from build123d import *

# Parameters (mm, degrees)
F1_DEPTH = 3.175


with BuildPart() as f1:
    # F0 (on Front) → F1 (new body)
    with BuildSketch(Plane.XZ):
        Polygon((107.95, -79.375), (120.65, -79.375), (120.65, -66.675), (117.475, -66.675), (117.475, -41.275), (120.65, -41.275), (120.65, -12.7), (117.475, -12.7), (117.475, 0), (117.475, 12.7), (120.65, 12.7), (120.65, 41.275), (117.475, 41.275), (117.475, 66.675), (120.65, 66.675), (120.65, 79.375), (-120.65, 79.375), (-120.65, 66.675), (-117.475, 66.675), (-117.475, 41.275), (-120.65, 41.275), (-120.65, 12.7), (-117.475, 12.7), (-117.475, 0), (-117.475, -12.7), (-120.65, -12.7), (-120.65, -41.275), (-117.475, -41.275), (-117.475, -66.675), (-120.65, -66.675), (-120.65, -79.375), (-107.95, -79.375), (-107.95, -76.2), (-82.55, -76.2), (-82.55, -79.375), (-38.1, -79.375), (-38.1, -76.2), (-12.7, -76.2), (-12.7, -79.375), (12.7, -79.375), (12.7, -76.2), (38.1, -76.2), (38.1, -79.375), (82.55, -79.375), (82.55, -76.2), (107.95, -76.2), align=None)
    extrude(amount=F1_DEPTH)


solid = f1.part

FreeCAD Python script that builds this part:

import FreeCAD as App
import Part
import Sketcher
Q = App.Units.Quantity

doc = App.newDocument("Part")
body = doc.addObject("PartDesign::Body", "Body")

# Sketch on XZ plane
sketch1 = doc.addObject("Sketcher::SketchObject", "Sketch")
body.addObject(sketch1)
sketch1.AttachmentSupport = (doc.XZ_Plane, [""])
sketch1.MapMode = "FlatFace"
sketch1.addGeometry(Part.LineSegment(App.Vector(108, -79.4, 0), App.Vector(120.7, -79.4, 0)), False)
sketch1.addGeometry(Part.LineSegment(App.Vector(120.7, -79.4, 0), App.Vector(120.7, -66.7, 0)), False)
sketch1.addGeometry(Part.LineSegment(App.Vector(120.7, -66.7, 0), App.Vector(117.5, -66.7, 0)), False)
sketch1.addGeometry(Part.LineSegment(App.Vector(117.5, -66.7, 0), App.Vector(117.5, -41.3, 0)), False)
sketch1.addGeometry(Part.LineSegment(App.Vector(117.5, -41.3, 0), App.Vector(120.7, -41.3, 0)), False)
sketch1.addGeometry(Part.LineSegment(App.Vector(120.7, -41.3, 0), App.Vector(120.7, -12.7, 0)), False)
sketch1.addGeometry(Part.LineSegment(App.Vector(120.7, -12.7, 0), App.Vector(117.5, -12.7, 0)), False)
sketch1.addGeometry(Part.LineSegment(App.Vector(117.5, -12.7, 0), App.Vector(117.5, 12.7, 0)), False)
sketch1.addGeometry(Part.LineSegment(App.Vector(117.5, 12.7, 0), App.Vector(120.7, 12.7, 0)), False)
sketch1.addGeometry(Part.LineSegment(App.Vector(120.7, 12.7, 0), App.Vector(120.7, 41.3, 0)), False)
sketch1.addGeometry(Part.LineSegment(App.Vector(120.7, 41.3, 0), App.Vector(117.5, 41.3, 0)), False)
sketch1.addGeometry(Part.LineSegment(App.Vector(117.5, 41.3, 0), App.Vector(117.5, 66.7, 0)), False)
sketch1.addGeometry(Part.LineSegment(App.Vector(117.5, 66.7, 0), App.Vector(120.7, 66.7, 0)), False)
sketch1.addGeometry(Part.LineSegment(App.Vector(120.7, 66.7, 0), App.Vector(120.7, 79.4, 0)), False)
sketch1.addGeometry(Part.LineSegment(App.Vector(120.7, 79.4, 0), App.Vector(-120.7, 79.4, 0)), False)
sketch1.addGeometry(Part.LineSegment(App.Vector(-120.7, 79.4, 0), App.Vector(-120.7, 66.7, 0)), False)
sketch1.addGeometry(Part.LineSegment(App.Vector(-120.7, 66.7, 0), App.Vector(-117.5, 66.7, 0)), False)
sketch1.addGeometry(Part.LineSegment(App.Vector(-117.5, 66.7, 0), App.Vector(-117.5, 41.3, 0)), False)
sketch1.addGeometry(Part.LineSegment(App.Vector(-117.5, 41.3, 0), App.Vector(-120.7, 41.3, 0)), False)
sketch1.addGeometry(Part.LineSegment(App.Vector(-120.7, 41.3, 0), App.Vector(-120.7, 12.7, 0)), False)
sketch1.addGeometry(Part.LineSegment(App.Vector(-120.7, 12.7, 0), App.Vector(-117.5, 12.7, 0)), False)
sketch1.addGeometry(Part.LineSegment(App.Vector(-117.5, 12.7, 0), App.Vector(-117.5, -12.7, 0)), False)
sketch1.addGeometry(Part.LineSegment(App.Vector(-117.5, -12.7, 0), App.Vector(-120.7, -12.7, 0)), False)
sketch1.addGeometry(Part.LineSegment(App.Vector(-120.7, -12.7, 0), App.Vector(-120.7, -41.3, 0)), False)
sketch1.addGeometry(Part.LineSegment(App.Vector(-120.7, -41.3, 0), App.Vector(-117.5, -41.3, 0)), False)
sketch1.addGeometry(Part.LineSegment(App.Vector(-117.5, -41.3, 0), App.Vector(-117.5, -66.7, 0)), False)
sketch1.addGeometry(Part.LineSegment(App.Vector(-117.5, -66.7, 0), App.Vector(-120.7, -66.7, 0)), False)
sketch1.addGeometry(Part.LineSegment(App.Vector(-120.7, -66.7, 0), App.Vector(-120.7, -79.4, 0)), False)
sketch1.addGeometry(Part.LineSegment(App.Vector(-120.7, -79.4, 0), App.Vector(-108, -79.4, 0)), False)
sketch1.addGeometry(Part.LineSegment(App.Vector(-108, -79.4, 0), App.Vector(-108, -76.2, 0)), False)
sketch1.addGeometry(Part.LineSegment(App.Vector(-108, -76.2, 0), App.Vector(-82.5, -76.2, 0)), False)
sketch1.addGeometry(Part.LineSegment(App.Vector(-82.5, -76.2, 0), App.Vector(-82.5, -79.4, 0)), False)
sketch1.addGeometry(Part.LineSegment(App.Vector(-82.5, -79.4, 0), App.Vector(-38.1, -79.4, 0)), False)
sketch1.addGeometry(Part.LineSegment(App.Vector(-38.1, -79.4, 0), App.Vector(-38.1, -76.2, 0)), False)
sketch1.addGeometry(Part.LineSegment(App.Vector(-38.1, -76.2, 0), App.Vector(-12.7, -76.2, 0)), False)
sketch1.addGeometry(Part.LineSegment(App.Vector(-12.7, -76.2, 0), App.Vector(-12.7, -79.4, 0)), False)
sketch1.addGeometry(Part.LineSegment(App.Vector(-12.7, -79.4, 0), App.Vector(12.7, -79.4, 0)), False)
sketch1.addGeometry(Part.LineSegment(App.Vector(12.7, -79.4, 0), App.Vector(12.7, -76.2, 0)), False)
sketch1.addGeometry(Part.LineSegment(App.Vector(12.7, -76.2, 0), App.Vector(38.1, -76.2, 0)), False)
sketch1.addGeometry(Part.LineSegment(App.Vector(38.1, -76.2, 0), App.Vector(38.1, -79.4, 0)), False)
sketch1.addGeometry(Part.LineSegment(App.Vector(38.1, -79.4, 0), App.Vector(82.5, -79.4, 0)), False)
sketch1.addGeometry(Part.LineSegment(App.Vector(82.5, -79.4, 0), App.Vector(82.5, -76.2, 0)), False)
sketch1.addGeometry(Part.LineSegment(App.Vector(82.5, -76.2, 0), App.Vector(108, -76.2, 0)), False)
sketch1.addGeometry(Part.LineSegment(App.Vector(108, -76.2, 0), App.Vector(108, -79.4, 0)), False)
sketch1.addConstraint(Sketcher.Constraint("Coincident", 0, 2, 1, 1))
sketch1.addConstraint(Sketcher.Constraint("Coincident", 1, 2, 2, 1))
sketch1.addConstraint(Sketcher.Constraint("Coincident", 2, 2, 3, 1))
sketch1.addConstraint(Sketcher.Constraint("Coincident", 3, 2, 4, 1))
sketch1.addConstraint(Sketcher.Constraint("Coincident", 4, 2, 5, 1))
sketch1.addConstraint(Sketcher.Constraint("Coincident", 5, 2, 6, 1))
sketch1.addConstraint(Sketcher.Constraint("Coincident", 6, 2, 7, 1))
sketch1.addConstraint(Sketcher.Constraint("Coincident", 7, 2, 8, 1))
sketch1.addConstraint(Sketcher.Constraint("Coincident", 8, 2, 9, 1))
sketch1.addConstraint(Sketcher.Constraint("Coincident", 9, 2, 10, 1))
sketch1.addConstraint(Sketcher.Constraint("Coincident", 10, 2, 11, 1))
sketch1.addConstraint(Sketcher.Constraint("Coincident", 11, 2, 12, 1))
sketch1.addConstraint(Sketcher.Constraint("Coincident", 12, 2, 13, 1))
sketch1.addConstraint(Sketcher.Constraint("Coincident", 13, 2, 14, 1))
sketch1.addConstraint(Sketcher.Constraint("Coincident", 14, 2, 15, 1))
sketch1.addConstraint(Sketcher.Constraint("Coincident", 15, 2, 16, 1))
sketch1.addConstraint(Sketcher.Constraint("Coincident", 16, 2, 17, 1))
sketch1.addConstraint(Sketcher.Constraint("Coincident", 17, 2, 18, 1))
sketch1.addConstraint(Sketcher.Constraint("Coincident", 18, 2, 19, 1))
sketch1.addConstraint(Sketcher.Constraint("Coincident", 19, 2, 20, 1))
sketch1.addConstraint(Sketcher.Constraint("Coincident", 20, 2, 21, 1))
sketch1.addConstraint(Sketcher.Constraint("Coincident", 21, 2, 22, 1))
sketch1.addConstraint(Sketcher.Constraint("Coincident", 22, 2, 23, 1))
sketch1.addConstraint(Sketcher.Constraint("Coincident", 23, 2, 24, 1))
sketch1.addConstraint(Sketcher.Constraint("Coincident", 24, 2, 25, 1))
sketch1.addConstraint(Sketcher.Constraint("Coincident", 25, 2, 26, 1))
sketch1.addConstraint(Sketcher.Constraint("Coincident", 26, 2, 27, 1))
sketch1.addConstraint(Sketcher.Constraint("Coincident", 27, 2, 28, 1))
sketch1.addConstraint(Sketcher.Constraint("Coincident", 28, 2, 29, 1))
sketch1.addConstraint(Sketcher.Constraint("Coincident", 29, 2, 30, 1))
sketch1.addConstraint(Sketcher.Constraint("Coincident", 30, 2, 31, 1))
sketch1.addConstraint(Sketcher.Constraint("Coincident", 31, 2, 32, 1))
sketch1.addConstraint(Sketcher.Constraint("Coincident", 32, 2, 33, 1))
sketch1.addConstraint(Sketcher.Constraint("Coincident", 33, 2, 34, 1))
sketch1.addConstraint(Sketcher.Constraint("Coincident", 34, 2, 35, 1))
sketch1.addConstraint(Sketcher.Constraint("Coincident", 35, 2, 36, 1))
sketch1.addConstraint(Sketcher.Constraint("Coincident", 36, 2, 37, 1))
sketch1.addConstraint(Sketcher.Constraint("Coincident", 37, 2, 38, 1))
sketch1.addConstraint(Sketcher.Constraint("Coincident", 38, 2, 39, 1))
sketch1.addConstraint(Sketcher.Constraint("Coincident", 39, 2, 40, 1))
sketch1.addConstraint(Sketcher.Constraint("Coincident", 40, 2, 41, 1))
sketch1.addConstraint(Sketcher.Constraint("Coincident", 41, 2, 42, 1))
sketch1.addConstraint(Sketcher.Constraint("Coincident", 42, 2, 43, 1))
sketch1.addConstraint(Sketcher.Constraint("Coincident", 43, 2, 0, 1))
sketch1.addConstraint(Sketcher.Constraint("Horizontal", 0))
sketch1.addConstraint(Sketcher.Constraint("Vertical", 1))
sketch1.addConstraint(Sketcher.Constraint("Horizontal", 2))
sketch1.addConstraint(Sketcher.Constraint("Vertical", 3))
sketch1.addConstraint(Sketcher.Constraint("Horizontal", 4))
sketch1.addConstraint(Sketcher.Constraint("Vertical", 5))
sketch1.addConstraint(Sketcher.Constraint("Horizontal", 6))
sketch1.addConstraint(Sketcher.Constraint("Vertical", 7))
sketch1.addConstraint(Sketcher.Constraint("Horizontal", 8))
sketch1.addConstraint(Sketcher.Constraint("Vertical", 9))
sketch1.addConstraint(Sketcher.Constraint("Horizontal", 10))
sketch1.addConstraint(Sketcher.Constraint("Vertical", 11))
sketch1.addConstraint(Sketcher.Constraint("Horizontal", 12))
sketch1.addConstraint(Sketcher.Constraint("Vertical", 13))
sketch1.addConstraint(Sketcher.Constraint("Horizontal", 14))
sketch1.addConstraint(Sketcher.Constraint("Vertical", 15))
sketch1.addConstraint(Sketcher.Constraint("Horizontal", 16))
sketch1.addConstraint(Sketcher.Constraint("Vertical", 17))
sketch1.addConstraint(Sketcher.Constraint("Horizontal", 18))
sketch1.addConstraint(Sketcher.Constraint("Vertical", 19))
sketch1.addConstraint(Sketcher.Constraint("Horizontal", 20))
sketch1.addConstraint(Sketcher.Constraint("Vertical", 21))
sketch1.addConstraint(Sketcher.Constraint("Horizontal", 22))
sketch1.addConstraint(Sketcher.Constraint("Vertical", 23))
sketch1.addConstraint(Sketcher.Constraint("Horizontal", 24))
sketch1.addConstraint(Sketcher.Constraint("Vertical", 25))
sketch1.addConstraint(Sketcher.Constraint("Horizontal", 26))
sketch1.addConstraint(Sketcher.Constraint("Vertical", 27))
sketch1.addConstraint(Sketcher.Constraint("Horizontal", 28))
sketch1.addConstraint(Sketcher.Constraint("Vertical", 29))
sketch1.addConstraint(Sketcher.Constraint("Horizontal", 30))
sketch1.addConstraint(Sketcher.Constraint("Vertical", 31))
sketch1.addConstraint(Sketcher.Constraint("Horizontal", 32))
sketch1.addConstraint(Sketcher.Constraint("Vertical", 33))
sketch1.addConstraint(Sketcher.Constraint("Horizontal", 34))
sketch1.addConstraint(Sketcher.Constraint("Vertical", 35))
sketch1.addConstraint(Sketcher.Constraint("Horizontal", 36))
sketch1.addConstraint(Sketcher.Constraint("Vertical", 37))
sketch1.addConstraint(Sketcher.Constraint("Horizontal", 38))
sketch1.addConstraint(Sketcher.Constraint("Vertical", 39))
sketch1.addConstraint(Sketcher.Constraint("Horizontal", 40))
sketch1.addConstraint(Sketcher.Constraint("Vertical", 41))
sketch1.addConstraint(Sketcher.Constraint("Horizontal", 42))
sketch1.addConstraint(Sketcher.Constraint("Vertical", 43))
sketch1.addConstraint(Sketcher.Constraint("Symmetric", 0, 2, 14, 2, -1, 1))
sketch1.addConstraint(Sketcher.Constraint("Symmetric", 2, 2, 16, 2, -1, 1))
sketch1.addConstraint(Sketcher.Constraint("Symmetric", 4, 2, 18, 2, -1, 1))
sketch1.addConstraint(Sketcher.Constraint("Symmetric", 6, 2, 20, 2, -1, 1))
sketch1.addConstraint(Sketcher.Constraint("Symmetric", 8, 2, 22, 2, -1, 1))
sketch1.addConstraint(Sketcher.Constraint("Symmetric", 10, 2, 24, 2, -1, 1))
sketch1.addConstraint(Sketcher.Constraint("Symmetric", 12, 2, 26, 2, -1, 1))
sketch1.addConstraint(Sketcher.Constraint("Symmetric", 12, 2, 15, 2, -2))
sketch1.addConstraint(Sketcher.Constraint("Symmetric", 10, 2, 17, 2, -2))
sketch1.addConstraint(Sketcher.Constraint("Symmetric", 8, 2, 19, 2, -2))
sketch1.addConstraint(Sketcher.Constraint("Symmetric", 34, 2, 37, 2, -2))
sketch1.addConstraint(Sketcher.Constraint("Symmetric", 32, 2, 39, 2, -2))
sketch1.addConstraint(Sketcher.Constraint("Symmetric", 30, 2, 41, 2, -2))
sketch1.addConstraint(Sketcher.Constraint("Symmetric", 28, 2, 43, 2, -2))
sketch1.addConstraint(Sketcher.Constraint("Horizontal", 28, 2, 31, 2))
sketch1.addConstraint(Sketcher.Constraint("Horizontal", 30, 2, 33, 2))
sketch1.addConstraint(Sketcher.Constraint("Horizontal", 32, 2, 35, 2))
sketch1.addConstraint(Sketcher.Constraint("Vertical", 1, 2, 4, 2))
sketch1.addConstraint(Sketcher.Constraint("Vertical", 3, 2, 6, 2))
sketch1.addConstraint(Sketcher.Constraint("Equal", 30, 34))
sketch1.addConstraint(Sketcher.Constraint("Equal", 34, 36))
sketch1.addConstraint(Sketcher.Constraint("Equal", 28, 1))
sketch1.addConstraint(Sketcher.Constraint("Equal", 42, 3))
sketch1.addConstraint(Sketcher.Constraint("Equal", 3, 7))
sketch1.addConstraint(Sketcher.Constraint("Equal", 26, 29))
sketch1.addConstraint(Sketcher.Constraint("DistanceX", 30, 1, 30, 2, Q("1 in")))
sketch1.addConstraint(Sketcher.Constraint("DistanceX", 0, 1, 0, 2, Q("0.5 in")))
sketch1.addConstraint(Sketcher.Constraint("DistanceX", 14, 2, 14, 1, Q("9.5 in")))
sketch1.addConstraint(Sketcher.Constraint("DistanceY", 29, 2, -1, 1, Q("3 in")))
sketch1.addConstraint(Sketcher.Constraint("DistanceX", 2, 2, 2, 1, Q("0.125 in")))
pad1 = doc.addObject("PartDesign::Pad", "Pad")
body.addObject(pad1)
pad1.Profile = sketch1
pad1.Length = Q("0.125 in")

doc.recompute()
